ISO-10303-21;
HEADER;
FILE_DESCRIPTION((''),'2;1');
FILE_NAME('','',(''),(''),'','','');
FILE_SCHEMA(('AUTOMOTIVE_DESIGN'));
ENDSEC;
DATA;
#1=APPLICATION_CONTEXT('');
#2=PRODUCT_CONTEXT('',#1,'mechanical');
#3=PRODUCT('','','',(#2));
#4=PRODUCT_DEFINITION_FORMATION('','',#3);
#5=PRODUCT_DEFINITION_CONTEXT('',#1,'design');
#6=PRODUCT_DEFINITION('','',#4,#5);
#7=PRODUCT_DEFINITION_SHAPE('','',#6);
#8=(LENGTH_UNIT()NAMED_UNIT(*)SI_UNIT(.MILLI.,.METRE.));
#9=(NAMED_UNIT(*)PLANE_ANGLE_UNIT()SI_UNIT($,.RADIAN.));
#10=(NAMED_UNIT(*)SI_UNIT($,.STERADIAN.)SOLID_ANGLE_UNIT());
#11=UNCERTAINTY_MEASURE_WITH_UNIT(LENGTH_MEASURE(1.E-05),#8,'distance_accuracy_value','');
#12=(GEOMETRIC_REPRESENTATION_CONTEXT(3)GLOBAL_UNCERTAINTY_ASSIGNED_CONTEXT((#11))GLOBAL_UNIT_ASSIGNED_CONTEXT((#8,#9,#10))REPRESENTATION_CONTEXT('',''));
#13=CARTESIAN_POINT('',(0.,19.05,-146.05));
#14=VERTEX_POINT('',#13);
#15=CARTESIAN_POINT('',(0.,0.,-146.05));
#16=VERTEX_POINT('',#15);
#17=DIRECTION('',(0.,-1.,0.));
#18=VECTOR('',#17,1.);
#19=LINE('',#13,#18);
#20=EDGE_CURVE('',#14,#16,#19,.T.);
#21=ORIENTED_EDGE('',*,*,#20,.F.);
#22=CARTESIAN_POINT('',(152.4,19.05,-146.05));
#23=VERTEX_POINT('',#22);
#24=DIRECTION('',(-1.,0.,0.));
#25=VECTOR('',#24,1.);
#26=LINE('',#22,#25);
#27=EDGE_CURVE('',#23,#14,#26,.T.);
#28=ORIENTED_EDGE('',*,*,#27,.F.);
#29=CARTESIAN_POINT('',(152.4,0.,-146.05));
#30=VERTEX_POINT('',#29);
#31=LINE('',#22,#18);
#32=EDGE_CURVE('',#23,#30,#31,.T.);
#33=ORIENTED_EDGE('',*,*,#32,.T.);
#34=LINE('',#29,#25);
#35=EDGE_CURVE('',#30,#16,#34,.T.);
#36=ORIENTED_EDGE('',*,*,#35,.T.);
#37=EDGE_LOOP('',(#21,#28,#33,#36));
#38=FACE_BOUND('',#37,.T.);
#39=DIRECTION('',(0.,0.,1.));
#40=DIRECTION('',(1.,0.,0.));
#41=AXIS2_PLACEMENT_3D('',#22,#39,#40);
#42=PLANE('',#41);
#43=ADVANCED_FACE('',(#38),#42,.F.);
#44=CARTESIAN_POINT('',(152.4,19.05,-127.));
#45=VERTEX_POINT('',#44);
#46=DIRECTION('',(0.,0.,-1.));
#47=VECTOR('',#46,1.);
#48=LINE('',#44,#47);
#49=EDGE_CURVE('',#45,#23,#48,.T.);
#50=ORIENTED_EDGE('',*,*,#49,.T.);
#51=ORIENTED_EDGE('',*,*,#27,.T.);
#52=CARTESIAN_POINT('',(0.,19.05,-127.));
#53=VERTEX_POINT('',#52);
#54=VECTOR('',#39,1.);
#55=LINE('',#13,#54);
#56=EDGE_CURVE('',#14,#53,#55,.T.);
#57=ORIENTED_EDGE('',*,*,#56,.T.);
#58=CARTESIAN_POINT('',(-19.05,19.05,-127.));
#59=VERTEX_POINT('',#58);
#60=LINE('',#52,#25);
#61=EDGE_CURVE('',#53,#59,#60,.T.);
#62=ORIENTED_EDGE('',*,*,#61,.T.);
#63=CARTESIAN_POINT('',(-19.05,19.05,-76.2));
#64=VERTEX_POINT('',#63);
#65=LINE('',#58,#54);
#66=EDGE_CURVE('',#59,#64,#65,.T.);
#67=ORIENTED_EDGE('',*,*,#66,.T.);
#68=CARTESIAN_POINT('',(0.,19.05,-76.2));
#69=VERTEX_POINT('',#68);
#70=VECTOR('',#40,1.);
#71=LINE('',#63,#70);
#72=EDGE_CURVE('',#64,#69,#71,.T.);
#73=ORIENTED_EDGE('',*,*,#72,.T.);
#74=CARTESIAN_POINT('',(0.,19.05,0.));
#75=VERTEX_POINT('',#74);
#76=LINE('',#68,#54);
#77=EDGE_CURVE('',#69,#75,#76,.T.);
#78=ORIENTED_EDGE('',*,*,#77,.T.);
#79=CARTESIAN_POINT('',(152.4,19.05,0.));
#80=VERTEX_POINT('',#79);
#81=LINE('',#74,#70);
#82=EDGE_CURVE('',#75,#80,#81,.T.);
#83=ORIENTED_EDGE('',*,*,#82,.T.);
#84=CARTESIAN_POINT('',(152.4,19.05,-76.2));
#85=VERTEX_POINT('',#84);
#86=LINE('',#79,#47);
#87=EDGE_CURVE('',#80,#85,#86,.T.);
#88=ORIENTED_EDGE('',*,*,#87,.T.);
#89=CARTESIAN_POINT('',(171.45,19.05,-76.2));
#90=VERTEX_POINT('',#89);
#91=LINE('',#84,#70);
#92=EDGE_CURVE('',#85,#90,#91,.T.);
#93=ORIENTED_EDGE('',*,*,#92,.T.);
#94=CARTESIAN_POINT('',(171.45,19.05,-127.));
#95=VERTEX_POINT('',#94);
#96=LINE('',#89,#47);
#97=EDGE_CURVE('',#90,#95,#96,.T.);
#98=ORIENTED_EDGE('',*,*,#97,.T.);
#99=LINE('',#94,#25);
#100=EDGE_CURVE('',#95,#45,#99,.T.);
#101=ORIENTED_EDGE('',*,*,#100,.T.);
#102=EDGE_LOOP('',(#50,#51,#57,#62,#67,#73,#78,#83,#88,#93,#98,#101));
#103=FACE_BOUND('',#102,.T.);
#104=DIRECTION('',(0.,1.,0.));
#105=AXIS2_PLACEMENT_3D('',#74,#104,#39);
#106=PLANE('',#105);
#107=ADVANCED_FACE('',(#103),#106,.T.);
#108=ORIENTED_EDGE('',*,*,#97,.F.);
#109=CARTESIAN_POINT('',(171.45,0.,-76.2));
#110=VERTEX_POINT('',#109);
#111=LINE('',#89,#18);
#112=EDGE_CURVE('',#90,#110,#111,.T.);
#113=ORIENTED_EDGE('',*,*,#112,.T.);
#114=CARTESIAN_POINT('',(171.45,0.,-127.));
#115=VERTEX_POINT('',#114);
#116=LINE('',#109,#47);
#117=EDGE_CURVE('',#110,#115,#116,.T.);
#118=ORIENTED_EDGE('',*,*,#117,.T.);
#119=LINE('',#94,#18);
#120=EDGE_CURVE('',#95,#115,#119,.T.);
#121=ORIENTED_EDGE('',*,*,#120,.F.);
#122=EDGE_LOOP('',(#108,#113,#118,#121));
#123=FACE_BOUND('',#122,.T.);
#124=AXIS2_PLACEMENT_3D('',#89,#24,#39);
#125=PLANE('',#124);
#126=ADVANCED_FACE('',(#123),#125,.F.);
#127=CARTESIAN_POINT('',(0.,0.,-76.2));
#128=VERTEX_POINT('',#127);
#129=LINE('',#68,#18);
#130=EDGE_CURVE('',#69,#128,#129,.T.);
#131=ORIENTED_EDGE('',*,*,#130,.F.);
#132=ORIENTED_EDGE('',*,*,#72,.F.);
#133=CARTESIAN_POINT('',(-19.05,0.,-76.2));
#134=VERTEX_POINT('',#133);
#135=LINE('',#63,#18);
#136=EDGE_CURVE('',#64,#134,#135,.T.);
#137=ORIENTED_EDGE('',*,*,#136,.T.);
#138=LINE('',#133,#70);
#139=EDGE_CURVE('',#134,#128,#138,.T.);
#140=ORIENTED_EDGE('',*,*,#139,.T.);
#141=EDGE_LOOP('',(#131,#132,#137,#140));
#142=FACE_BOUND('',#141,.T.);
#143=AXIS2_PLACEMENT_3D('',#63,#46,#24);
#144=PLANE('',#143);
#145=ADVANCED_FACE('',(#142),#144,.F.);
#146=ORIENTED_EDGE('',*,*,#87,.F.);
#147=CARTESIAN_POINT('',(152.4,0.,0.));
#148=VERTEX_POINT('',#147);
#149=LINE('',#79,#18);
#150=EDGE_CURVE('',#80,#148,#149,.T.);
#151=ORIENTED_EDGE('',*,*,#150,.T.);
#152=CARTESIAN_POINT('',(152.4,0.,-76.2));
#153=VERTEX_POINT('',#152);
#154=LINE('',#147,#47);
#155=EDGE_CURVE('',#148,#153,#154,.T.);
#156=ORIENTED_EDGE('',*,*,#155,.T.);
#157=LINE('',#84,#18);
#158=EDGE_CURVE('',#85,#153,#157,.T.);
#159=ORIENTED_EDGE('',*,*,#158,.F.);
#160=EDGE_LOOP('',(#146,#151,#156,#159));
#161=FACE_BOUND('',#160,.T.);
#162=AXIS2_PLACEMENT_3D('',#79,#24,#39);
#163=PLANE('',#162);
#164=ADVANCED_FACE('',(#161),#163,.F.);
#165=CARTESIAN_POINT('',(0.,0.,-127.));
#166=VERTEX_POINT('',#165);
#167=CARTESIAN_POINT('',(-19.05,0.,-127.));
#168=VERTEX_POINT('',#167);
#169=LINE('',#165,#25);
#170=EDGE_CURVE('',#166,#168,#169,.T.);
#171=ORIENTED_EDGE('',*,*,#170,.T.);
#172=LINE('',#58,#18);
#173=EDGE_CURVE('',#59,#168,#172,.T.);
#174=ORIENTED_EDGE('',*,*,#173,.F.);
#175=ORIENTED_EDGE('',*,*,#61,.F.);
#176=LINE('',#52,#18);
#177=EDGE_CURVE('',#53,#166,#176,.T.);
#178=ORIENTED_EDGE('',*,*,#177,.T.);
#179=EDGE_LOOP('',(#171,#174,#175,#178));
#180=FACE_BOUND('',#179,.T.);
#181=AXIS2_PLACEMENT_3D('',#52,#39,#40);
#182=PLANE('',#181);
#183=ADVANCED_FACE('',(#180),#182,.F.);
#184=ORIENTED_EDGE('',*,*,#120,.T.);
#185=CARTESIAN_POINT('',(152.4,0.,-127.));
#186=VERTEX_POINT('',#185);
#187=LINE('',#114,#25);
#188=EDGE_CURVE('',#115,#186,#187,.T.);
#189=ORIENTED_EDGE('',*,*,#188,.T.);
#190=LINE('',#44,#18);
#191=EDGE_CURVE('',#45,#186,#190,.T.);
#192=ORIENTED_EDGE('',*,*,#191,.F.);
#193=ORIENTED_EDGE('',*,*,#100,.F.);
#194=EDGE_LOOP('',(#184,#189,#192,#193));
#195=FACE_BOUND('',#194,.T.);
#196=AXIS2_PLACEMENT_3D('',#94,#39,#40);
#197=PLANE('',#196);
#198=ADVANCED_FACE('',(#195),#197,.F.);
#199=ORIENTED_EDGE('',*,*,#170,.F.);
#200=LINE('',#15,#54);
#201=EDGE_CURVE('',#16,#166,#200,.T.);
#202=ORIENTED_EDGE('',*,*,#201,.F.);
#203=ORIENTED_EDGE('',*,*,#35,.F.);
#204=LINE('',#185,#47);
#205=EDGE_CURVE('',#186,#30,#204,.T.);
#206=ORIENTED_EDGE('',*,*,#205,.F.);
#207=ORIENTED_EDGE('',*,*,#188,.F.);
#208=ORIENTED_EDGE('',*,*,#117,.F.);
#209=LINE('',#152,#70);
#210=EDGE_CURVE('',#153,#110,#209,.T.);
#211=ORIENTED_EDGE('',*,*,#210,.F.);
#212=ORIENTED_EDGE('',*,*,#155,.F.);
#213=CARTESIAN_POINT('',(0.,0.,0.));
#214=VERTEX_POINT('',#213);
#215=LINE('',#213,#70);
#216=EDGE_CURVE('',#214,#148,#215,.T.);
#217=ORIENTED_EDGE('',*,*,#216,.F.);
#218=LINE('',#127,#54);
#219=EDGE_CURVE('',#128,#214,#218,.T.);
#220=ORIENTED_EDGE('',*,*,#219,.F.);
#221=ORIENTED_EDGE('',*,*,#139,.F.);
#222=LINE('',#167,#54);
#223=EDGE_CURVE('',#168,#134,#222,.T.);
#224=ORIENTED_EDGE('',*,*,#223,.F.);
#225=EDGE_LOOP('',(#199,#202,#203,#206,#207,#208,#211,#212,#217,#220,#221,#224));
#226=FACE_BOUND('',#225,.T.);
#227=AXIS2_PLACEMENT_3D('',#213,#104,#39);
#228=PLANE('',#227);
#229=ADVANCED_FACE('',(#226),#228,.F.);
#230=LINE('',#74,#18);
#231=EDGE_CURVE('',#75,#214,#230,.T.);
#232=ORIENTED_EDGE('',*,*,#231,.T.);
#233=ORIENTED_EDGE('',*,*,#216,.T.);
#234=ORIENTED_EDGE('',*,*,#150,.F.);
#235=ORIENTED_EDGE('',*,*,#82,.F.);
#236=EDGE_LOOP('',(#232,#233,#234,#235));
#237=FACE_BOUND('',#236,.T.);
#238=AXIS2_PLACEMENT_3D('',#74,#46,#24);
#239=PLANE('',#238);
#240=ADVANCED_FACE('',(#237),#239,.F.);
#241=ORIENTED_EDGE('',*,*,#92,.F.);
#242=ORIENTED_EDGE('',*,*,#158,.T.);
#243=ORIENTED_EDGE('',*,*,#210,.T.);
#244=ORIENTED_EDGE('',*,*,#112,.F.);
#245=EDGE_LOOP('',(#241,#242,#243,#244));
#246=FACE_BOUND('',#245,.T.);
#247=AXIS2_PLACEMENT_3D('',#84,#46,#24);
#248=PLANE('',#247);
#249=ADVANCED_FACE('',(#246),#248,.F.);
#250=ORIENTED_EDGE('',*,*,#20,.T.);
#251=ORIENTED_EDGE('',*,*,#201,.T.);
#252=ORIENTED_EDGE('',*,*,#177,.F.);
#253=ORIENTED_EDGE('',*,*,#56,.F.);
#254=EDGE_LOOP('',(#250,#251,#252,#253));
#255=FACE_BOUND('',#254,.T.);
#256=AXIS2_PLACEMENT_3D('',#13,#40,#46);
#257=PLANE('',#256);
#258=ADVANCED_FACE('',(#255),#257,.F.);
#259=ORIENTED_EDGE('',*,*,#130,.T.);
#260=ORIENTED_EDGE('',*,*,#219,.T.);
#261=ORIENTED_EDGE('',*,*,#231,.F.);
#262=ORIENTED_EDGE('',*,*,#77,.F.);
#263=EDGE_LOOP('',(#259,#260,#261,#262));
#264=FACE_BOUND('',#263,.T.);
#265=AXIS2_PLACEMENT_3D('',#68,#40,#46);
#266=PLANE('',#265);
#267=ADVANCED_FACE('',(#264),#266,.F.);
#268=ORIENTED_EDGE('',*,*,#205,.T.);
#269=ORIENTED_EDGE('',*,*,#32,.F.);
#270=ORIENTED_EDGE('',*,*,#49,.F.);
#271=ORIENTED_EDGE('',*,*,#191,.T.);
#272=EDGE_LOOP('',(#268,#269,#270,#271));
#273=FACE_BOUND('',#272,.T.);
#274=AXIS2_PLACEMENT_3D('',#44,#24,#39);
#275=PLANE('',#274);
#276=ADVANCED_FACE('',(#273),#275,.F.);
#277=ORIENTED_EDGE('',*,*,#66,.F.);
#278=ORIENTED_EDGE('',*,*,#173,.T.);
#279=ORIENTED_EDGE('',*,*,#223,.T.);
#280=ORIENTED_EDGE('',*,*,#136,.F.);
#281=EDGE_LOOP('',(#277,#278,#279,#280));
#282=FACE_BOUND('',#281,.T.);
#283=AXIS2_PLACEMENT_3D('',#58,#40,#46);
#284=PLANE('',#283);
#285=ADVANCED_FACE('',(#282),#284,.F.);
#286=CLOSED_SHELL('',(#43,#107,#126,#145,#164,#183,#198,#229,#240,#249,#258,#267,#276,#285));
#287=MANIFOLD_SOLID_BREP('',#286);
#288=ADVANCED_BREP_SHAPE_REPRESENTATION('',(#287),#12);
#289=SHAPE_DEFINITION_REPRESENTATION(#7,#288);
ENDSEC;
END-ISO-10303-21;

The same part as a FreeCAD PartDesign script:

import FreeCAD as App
import Part
import Sketcher
Q = App.Units.Quantity

doc = App.newDocument("Part")
body = doc.addObject("PartDesign::Body", "Body")

sketch1 = doc.addObject("Sketcher::SketchObject", "Sketch")
body.addObject(sketch1)
sketch1.AttachmentSupport = (doc.XZ_Plane, [""])
sketch1.MapMode = "FlatFace"
sketch1.addGeometry(Part.LineSegment(App.Vector(0, 0, 0), App.Vector(152, 0, 0)), False)
sketch1.addGeometry(Part.LineSegment(App.Vector(152, 0, 0), App.Vector(152, -76, 0)), False)
sketch1.addGeometry(Part.LineSegment(App.Vector(152, -76, 0), App.Vector(171, -76, 0)), False)
sketch1.addGeometry(Part.LineSegment(App.Vector(171, -76, 0), App.Vector(171, -127, 0)), False)
sketch1.addGeometry(Part.LineSegment(App.Vector(171, -127, 0), App.Vector(152, -127, 0)), False)
sketch1.addGeometry(Part.LineSegment(App.Vector(152, -127, 0), App.Vector(152, -146, 0)), False)
sketch1.addGeometry(Part.LineSegment(App.Vector(152, -146, 0), App.Vector(0, -146, 0)), False)
sketch1.addGeometry(Part.LineSegment(App.Vector(0, -146, 0), App.Vector(0, -127, 0)), False)
sketch1.addGeometry(Part.LineSegment(App.Vector(0, -127, 0), App.Vector(-19, -127, 0)), False)
sketch1.addGeometry(Part.LineSegment(App.Vector(-19, -127, 0), App.Vector(-19, -76, 0)), False)
sketch1.addGeometry(Part.LineSegment(App.Vector(-19, -76, 0), App.Vector(0, -76, 0)), False)
sketch1.addGeometry(Part.LineSegment(App.Vector(0, -76, 0), App.Vector(0, 0, 0)), False)
sketch1.addConstraint(Sketcher.Constraint("Coincident", 0, 2, 1, 1))
sketch1.addConstraint(Sketcher.Constraint("Coincident", 1, 2, 2, 1))
sketch1.addConstraint(Sketcher.Constraint("Coincident", 2, 2, 3, 1))
sketch1.addConstraint(Sketcher.Constraint("Coincident", 3, 2, 4, 1))
sketch1.addConstraint(Sketcher.Constraint("Coincident", 4, 2, 5, 1))
sketch1.addConstraint(Sketcher.Constraint("Coincident", 5, 2, 6, 1))
sketch1.addConstraint(Sketcher.Constraint("Coincident", 6, 2, 7, 1))
sketch1.addConstraint(Sketcher.Constraint("Coincident", 7, 2, 8, 1))
sketch1.addConstraint(Sketcher.Constraint("Coincident", 8, 2, 9, 1))
sketch1.addConstraint(Sketcher.Constraint("Coincident", 9, 2, 10, 1))
sketch1.addConstraint(Sketcher.Constraint("Coincident", 10, 2, 11, 1))
sketch1.addConstraint(Sketcher.Constraint("Coincident", 11, 2, 0, 1))
sketch1.addConstraint(Sketcher.Constraint("Horizontal", 0))
sketch1.addConstraint(Sketcher.Constraint("Vertical", 1))
sketch1.addConstraint(Sketcher.Constraint("Horizontal", 2))
sketch1.addConstraint(Sketcher.Constraint("Vertical", 3))
sketch1.addConstraint(Sketcher.Constraint("Horizontal", 4))
sketch1.addConstraint(Sketcher.Constraint("Vertical", 5))
sketch1.addConstraint(Sketcher.Constraint("Horizontal", 6))
sketch1.addConstraint(Sketcher.Constraint("Vertical", 7))
sketch1.addConstraint(Sketcher.Constraint("Horizontal", 8))
sketch1.addConstraint(Sketcher.Constraint("Vertical", 9))
sketch1.addConstraint(Sketcher.Constraint("Horizontal", 10))
sketch1.addConstraint(Sketcher.Constraint("Vertical", 11))
sketch1.addConstraint(Sketcher.Constraint("Coincident", 11, 2, -1, 1))
sketch1.addConstraint(Sketcher.Constraint("PointOnObject", 6, 2, -2))
sketch1.addConstraint(Sketcher.Constraint("Horizontal", 4, 2, 7, 2))
sketch1.addConstraint(Sketcher.Constraint("Horizontal", 2, 2, 9, 2))
sketch1.addConstraint(Sketcher.Constraint("Vertical", 1, 2, 4, 2))
sketch1.addConstraint(Sketcher.Constraint("Equal", 4, 8))
sketch1.addConstraint(Sketcher.Constraint("Equal", 10, 5))
sketch1.addConstraint(Sketcher.Constraint("DistanceX", 0, 1, 0, 2, Q("6 in")))
sketch1.addConstraint(Sketcher.Constraint("DistanceY", 1, 2, 1, 1, Q("3 in")))
sketch1.addConstraint(Sketcher.Constraint("DistanceY", 3, 2, 3, 1, Q("2 in")))
sketch1.addConstraint(Sketcher.Constraint("DistanceX", 2, 1, 2, 2, Q("0.75 in")))
pad1 = doc.addObject("PartDesign::Pad", "Pad")
body.addObject(pad1)
pad1.Profile = sketch1
pad1.Length = Q("0.75 in")
pad1.Reversed = True

doc.recompute()
